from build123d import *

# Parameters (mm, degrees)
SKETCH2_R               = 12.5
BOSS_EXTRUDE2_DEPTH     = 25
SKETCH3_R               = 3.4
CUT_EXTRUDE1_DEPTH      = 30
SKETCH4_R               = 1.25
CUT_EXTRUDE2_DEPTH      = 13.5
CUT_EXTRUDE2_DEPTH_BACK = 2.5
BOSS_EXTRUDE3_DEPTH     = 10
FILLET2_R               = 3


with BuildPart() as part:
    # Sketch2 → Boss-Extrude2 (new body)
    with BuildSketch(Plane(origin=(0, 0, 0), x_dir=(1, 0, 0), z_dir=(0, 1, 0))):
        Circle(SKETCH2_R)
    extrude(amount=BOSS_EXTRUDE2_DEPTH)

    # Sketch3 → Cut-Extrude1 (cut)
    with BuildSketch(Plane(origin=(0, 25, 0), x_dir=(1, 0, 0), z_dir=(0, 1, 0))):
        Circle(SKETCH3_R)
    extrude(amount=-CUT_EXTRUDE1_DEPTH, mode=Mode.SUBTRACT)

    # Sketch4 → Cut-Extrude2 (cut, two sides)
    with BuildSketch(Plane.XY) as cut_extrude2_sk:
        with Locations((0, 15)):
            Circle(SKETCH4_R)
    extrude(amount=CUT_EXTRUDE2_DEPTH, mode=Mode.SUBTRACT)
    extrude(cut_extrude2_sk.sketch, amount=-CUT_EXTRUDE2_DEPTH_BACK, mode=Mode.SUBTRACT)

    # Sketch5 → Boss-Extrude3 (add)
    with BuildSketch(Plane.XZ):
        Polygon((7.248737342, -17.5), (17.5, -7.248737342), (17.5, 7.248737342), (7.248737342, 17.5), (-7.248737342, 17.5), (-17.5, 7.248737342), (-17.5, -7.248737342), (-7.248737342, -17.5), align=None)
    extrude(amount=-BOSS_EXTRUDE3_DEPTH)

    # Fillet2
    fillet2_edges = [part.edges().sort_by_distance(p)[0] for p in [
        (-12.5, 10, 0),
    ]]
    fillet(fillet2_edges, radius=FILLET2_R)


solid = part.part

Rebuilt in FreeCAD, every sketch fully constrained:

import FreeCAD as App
import Part
import Sketcher
from FreeCAD import Vector
Q = App.Units.Quantity


def edges_at(feature, points):
    """Names of the edges that pass closest to the given points."""
    edges = feature.Shape.Edges
    near = lambda p: min(range(len(edges)), key=lambda i: edges[i].distToShape(Part.Vertex(*p))[0])
    return sorted({f"Edge{near(p) + 1}" for p in points})

doc = App.newDocument("Part")
body = doc.addObject("PartDesign::Body", "Body")

sketch1 = doc.addObject("Sketcher::SketchObject", "Sketch")
body.addObject(sketch1)
sketch1.AttachmentSupport = (doc.XZ_Plane, [""])
sketch1.MapMode = "FlatFace"
sketch1.addGeometry(Part.Circle(Vector(0, 0, 0), Vector(0, 0, 1), 12.5), False)
sketch1.addConstraint(Sketcher.Constraint("Coincident", 0, 3, -1, 1))
sketch1.addConstraint(Sketcher.Constraint("Diameter", 0, Q("25 mm")))
pad1 = doc.addObject("PartDesign::Pad", "Pad")
body.addObject(pad1)
pad1.Profile = sketch1
pad1.Length = 25
pad1.Reversed = True

sketch2 = doc.addObject("Sketcher::SketchObject", "Sketch001")
body.addObject(sketch2)
sketch2.AttachmentSupport = (doc.XZ_Plane, [""])
sketch2.MapMode = "FlatFace"
sketch2.AttachmentOffset = App.Placement(Vector(0, 0, -25), App.Rotation())
sketch2.addGeometry(Part.Circle(Vector(0, 0, 0), Vector(0, 0, 1), 3.4), False)
sketch2.addConstraint(Sketcher.Constraint("Coincident", 0, 3, -1, 1))
sketch2.addConstraint(Sketcher.Constraint("Diameter", 0, Q("6.8 mm")))
pocket1 = doc.addObject("PartDesign::Pocket", "Pocket")
body.addObject(pocket1)
pocket1.Profile = sketch2
pocket1.Length = 30
pocket1.Reversed = True

sketch3 = doc.addObject("Sketcher::SketchObject", "Sketch002")
body.addObject(sketch3)
sketch3.AttachmentSupport = (doc.XY_Plane, [""])
sketch3.MapMode = "FlatFace"
sketch3.addGeometry(Part.Circle(Vector(0, 15, 0), Vector(0, 0, 1), 1.25), False)
sketch3.addConstraint(Sketcher.Constraint("PointOnObject", 0, 3, -2))
sketch3.addConstraint(Sketcher.Constraint("Diameter", 0, Q("2.5 mm")))
sketch3.addConstraint(Sketcher.Constraint("DistanceY", -1, 1, 0, 3, Q("15 mm")))
pocket2 = doc.addObject("PartDesign::Pocket", "Pocket001")
body.addObject(pocket2)
pocket2.Profile = sketch3
pocket2.Type = "TwoLengths"
pocket2.Length = 13.5
pocket2.Length2 = 2.5
pocket2.Reversed = True

sketch4 = doc.addObject("Sketcher::SketchObject", "Sketch003")
body.addObject(sketch4)
sketch4.AttachmentSupport = (doc.XZ_Plane, [""])
sketch4.MapMode = "FlatFace"
sketch4.addGeometry(Part.LineSegment(Vector(7.248737, -17.5, 0), Vector(17.5, -7.248737, 0)), False)
sketch4.addGeometry(Part.LineSegment(Vector(17.5, -7.248737, 0), Vector(17.5, 7.248737, 0)), False)
sketch4.addGeometry(Part.LineSegment(Vector(17.5, 7.248737, 0), Vector(7.248737, 17.5, 0)), False)
sketch4.addGeometry(Part.LineSegment(Vector(7.248737, 17.5, 0), Vector(-7.248737, 17.5, 0)), False)
sketch4.addGeometry(Part.LineSegment(Vector(-7.248737, 17.5, 0), Vector(-17.5, 7.248737, 0)), False)
sketch4.addGeometry(Part.LineSegment(Vector(-17.5, 7.248737, 0), Vector(-17.5, -7.248737, 0)), False)
sketch4.addGeometry(Part.LineSegment(Vector(-17.5, -7.248737, 0), Vector(-7.248737, -17.5, 0)), False)
sketch4.addGeometry(Part.LineSegment(Vector(-7.248737, -17.5, 0), Vector(7.248737, -17.5, 0)), False)
sketch4.addConstraint(Sketcher.Constraint("Coincident", 0, 2, 1, 1))
sketch4.addConstraint(Sketcher.Constraint("Coincident", 1, 2, 2, 1))
sketch4.addConstraint(Sketcher.Constraint("Coincident", 2, 2, 3, 1))
sketch4.addConstraint(Sketcher.Constraint("Coincident", 3, 2, 4, 1))
sketch4.addConstraint(Sketcher.Constraint("Coincident", 4, 2, 5, 1))
sketch4.addConstraint(Sketcher.Constraint("Coincident", 5, 2, 6, 1))
sketch4.addConstraint(Sketcher.Constraint("Coincident", 6, 2, 7, 1))
sketch4.addConstraint(Sketcher.Constraint("Coincident", 7, 2, 0, 1))
sketch4.addConstraint(Sketcher.Constraint("Vertical", 1))
sketch4.addConstraint(Sketcher.Constraint("Horizontal", 3))
sketch4.addConstraint(Sketcher.Constraint("Vertical", 5))
sketch4.addConstraint(Sketcher.Constraint("Horizontal", 7))
sketch4.addConstraint(Sketcher.Constraint("Symmetric", 0, 2, 4, 2, -1, 1))
sketch4.addConstraint(Sketcher.Constraint("Symmetric", 2, 2, 6, 2, -1, 1))
sketch4.addConstraint(Sketcher.Constraint("Perpendicular", 0, 2))
sketch4.addConstraint(Sketcher.Constraint("Perpendicular", 2, 4))
sketch4.addConstraint(Sketcher.Constraint("Perpendicular", 4, 6))
sketch4.addConstraint(Sketcher.Constraint("Horizontal", 1, 2, 4, 2))
sketch4.addConstraint(Sketcher.Constraint("Vertical", 3, 2, 6, 2))
sketch4.addConstraint(Sketcher.Constraint("Equal", 7, 1))
sketch4.addConstraint(Sketcher.Constraint("DistanceX", 4, 2, 1, 2, Q("35 mm")))
sketch4.addConstraint(Sketcher.Constraint("DistanceX", 3, 2, 3, 1, Q("14.497475 mm")))
pad2 = doc.addObject("PartDesign::Pad", "Pad001")
body.addObject(pad2)
pad2.Profile = sketch4
pad2.Length = 10
pad2.Reversed = True
doc.recompute()

fillet = doc.addObject("PartDesign::Fillet", "Fillet")
body.addObject(fillet)
fillet.Base = (pad2, edges_at(pad2, [(-12.5, 10, 0)]))
fillet.Radius = 3

doc.recompute()
